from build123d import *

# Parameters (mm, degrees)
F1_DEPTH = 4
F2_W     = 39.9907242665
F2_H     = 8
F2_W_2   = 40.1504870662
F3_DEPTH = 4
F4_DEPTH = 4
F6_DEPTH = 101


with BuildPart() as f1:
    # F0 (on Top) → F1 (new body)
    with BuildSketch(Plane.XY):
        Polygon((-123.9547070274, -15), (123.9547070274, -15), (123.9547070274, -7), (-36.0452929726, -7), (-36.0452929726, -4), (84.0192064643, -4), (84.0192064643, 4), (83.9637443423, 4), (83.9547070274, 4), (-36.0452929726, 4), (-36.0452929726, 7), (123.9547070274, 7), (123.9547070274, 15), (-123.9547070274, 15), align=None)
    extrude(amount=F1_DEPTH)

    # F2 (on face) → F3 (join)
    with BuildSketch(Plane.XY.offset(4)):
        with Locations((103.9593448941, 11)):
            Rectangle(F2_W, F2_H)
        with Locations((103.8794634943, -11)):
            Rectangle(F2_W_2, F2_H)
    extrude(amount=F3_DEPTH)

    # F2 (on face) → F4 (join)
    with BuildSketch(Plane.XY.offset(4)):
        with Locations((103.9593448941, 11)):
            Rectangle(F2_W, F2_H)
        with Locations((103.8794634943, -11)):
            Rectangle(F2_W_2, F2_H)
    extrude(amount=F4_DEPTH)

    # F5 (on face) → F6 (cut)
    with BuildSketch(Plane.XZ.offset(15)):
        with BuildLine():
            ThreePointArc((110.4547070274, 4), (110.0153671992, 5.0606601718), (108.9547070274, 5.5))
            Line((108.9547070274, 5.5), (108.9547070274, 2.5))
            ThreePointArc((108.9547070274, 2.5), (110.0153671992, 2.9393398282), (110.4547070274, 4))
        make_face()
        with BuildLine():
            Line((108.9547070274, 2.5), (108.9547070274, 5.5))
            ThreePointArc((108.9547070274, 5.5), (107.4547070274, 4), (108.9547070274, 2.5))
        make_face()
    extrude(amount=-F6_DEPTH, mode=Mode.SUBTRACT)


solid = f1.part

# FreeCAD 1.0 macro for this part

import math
import FreeCAD as App
import Part
import Sketcher

V = App.Vector
Q = App.Units.Quantity

doc = App.newDocument("Part")
body = doc.addObject("PartDesign::Body", "Body")

# Sketch on XY plane
sketch1 = doc.addObject("Sketcher::SketchObject", "Sketch")
body.addObject(sketch1)
sketch1.AttachmentSupport = (doc.XY_Plane, [""])
sketch1.MapMode = "FlatFace"
sketch1.addGeometry(Part.LineSegment(V(-124, -15, 0), V(124, -15, 0)), False)
sketch1.addGeometry(Part.LineSegment(V(124, -15, 0), V(124, -7, 0)), False)
sketch1.addGeometry(Part.LineSegment(V(124, -7, 0), V(-36, -7, 0)), False)
sketch1.addGeometry(Part.LineSegment(V(-36, -7, 0), V(-36, -4, 0)), False)
sketch1.addGeometry(Part.LineSegment(V(-36, -4, 0), V(84, -4, 0)), False)
sketch1.addGeometry(Part.LineSegment(V(84, -4, 0), V(84, 4, 0)), False)
sketch1.addGeometry(Part.LineSegment(V(84, 4, 0), V(-36, 4, 0)), False)
sketch1.addGeometry(Part.LineSegment(V(-36, 4, 0), V(-36, 7, 0)), False)
sketch1.addGeometry(Part.LineSegment(V(-36, 7, 0), V(124, 7, 0)), False)
sketch1.addGeometry(Part.LineSegment(V(124, 7, 0), V(124, 15, 0)), False)
sketch1.addGeometry(Part.LineSegment(V(124, 15, 0), V(-124, 15, 0)), False)
sketch1.addGeometry(Part.LineSegment(V(-124, 15, 0), V(-124, -15, 0)), False)
sketch1.addConstraint(Sketcher.Constraint("Coincident", 0, 2, 1, 1))
sketch1.addConstraint(Sketcher.Constraint("Coincident", 1, 2, 2, 1))
sketch1.addConstraint(Sketcher.Constraint("Coincident", 2, 2, 3, 1))
sketch1.addConstraint(Sketcher.Constraint("Coincident", 3, 2, 4, 1))
sketch1.addConstraint(Sketcher.Constraint("Coincident", 4, 2, 5, 1))
sketch1.addConstraint(Sketcher.Constraint("Coincident", 5, 2, 6, 1))
sketch1.addConstraint(Sketcher.Constraint("Coincident", 6, 2, 7, 1))
sketch1.addConstraint(Sketcher.Constraint("Coincident", 7, 2, 8, 1))
sketch1.addConstraint(Sketcher.Constraint("Coincident", 8, 2, 9, 1))
sketch1.addConstraint(Sketcher.Constraint("Coincident", 9, 2, 10, 1))
sketch1.addConstraint(Sketcher.Constraint("Coincident", 10, 2, 11, 1))
sketch1.addConstraint(Sketcher.Constraint("Coincident", 11, 2, 0, 1))
sketch1.addConstraint(Sketcher.Constraint("Horizontal", 0))
sketch1.addConstraint(Sketcher.Constraint("Vertical", 1))
sketch1.addConstraint(Sketcher.Constraint("Horizontal", 2))
sketch1.addConstraint(Sketcher.Constraint("Vertical", 3))
sketch1.addConstraint(Sketcher.Constraint("Horizontal", 4))
sketch1.addConstraint(Sketcher.Constraint("Vertical", 5))
sketch1.addConstraint(Sketcher.Constraint("Horizontal", 6))
sketch1.addConstraint(Sketcher.Constraint("Vertical", 7))
sketch1.addConstraint(Sketcher.Constraint("Horizontal", 8))
sketch1.addConstraint(Sketcher.Constraint("Vertical", 9))
sketch1.addConstraint(Sketcher.Constraint("Horizontal", 10))
sketch1.addConstraint(Sketcher.Constraint("Vertical", 11))
sketch1.addConstraint(Sketcher.Constraint("Symmetric", 0, 2, 10, 2, -1, 1))
sketch1.addConstraint(Sketcher.Constraint("Symmetric", 3, 2, 6, 2, -1))
sketch1.addConstraint(Sketcher.Constraint("Symmetric", 1, 2, 8, 2, -1))
sketch1.addConstraint(Sketcher.Constraint("Equal", 1, 5))
sketch1.addConstraint(Sketcher.Constraint("DistanceX", 2, 2, 2, 1, Q("160 mm")))
sketch1.addConstraint(Sketcher.Constraint("DistanceY", 1, 1, 1, 2, Q("8 mm")))
sketch1.addConstraint(Sketcher.Constraint("DistanceY", 3, 1, 3, 2, Q("3 mm")))
sketch1.addConstraint(Sketcher.Constraint("DistanceX", 4, 1, 4, 2, Q("120.064499 mm")))
sketch1.addConstraint(Sketcher.Constraint("DistanceX", 0, 1, 0, 2, Q("247.909414 mm")))
pad1 = doc.addObject("PartDesign::Pad", "Pad")
body.addObject(pad1)
pad1.Profile = sketch1
pad1.Length = 4

# Sketch on XY plane
sketch2 = doc.addObject("Sketcher::SketchObject", "Sketch001")
body.addObject(sketch2)
sketch2.AttachmentSupport = (doc.XY_Plane, [""])
sketch2.MapMode = "FlatFace"
sketch2.AttachmentOffset = App.Placement(V(0, 0, 4), App.Rotation())
sketch2.addGeometry(Part.LineSegment(V(84, 15, 0), V(84, 7, 0)), False)
sketch2.addGeometry(Part.LineSegment(V(84, 7, 0), V(124, 7, 0)), False)
sketch2.addGeometry(Part.LineSegment(V(124, 7, 0), V(124, 15, 0)), False)
sketch2.addGeometry(Part.LineSegment(V(124, 15, 0), V(84, 15, 0)), False)
sketch2.addGeometry(Part.LineSegment(V(84, -7, 0), V(84, -15, 0)), False)
sketch2.addGeometry(Part.LineSegment(V(84, -15, 0), V(124, -15, 0)), False)
sketch2.addGeometry(Part.LineSegment(V(124, -15, 0), V(124, -7, 0)), False)
sketch2.addGeometry(Part.LineSegment(V(124, -7, 0), V(84, -7, 0)), False)
sketch2.addConstraint(Sketcher.Constraint("Coincident", 0, 2, 1, 1))
sketch2.addConstraint(Sketcher.Constraint("Coincident", 1, 2, 2, 1))
sketch2.addConstraint(Sketcher.Constraint("Coincident", 2, 2, 3, 1))
sketch2.addConstraint(Sketcher.Constraint("Coincident", 3, 2, 0, 1))
sketch2.addConstraint(Sketcher.Constraint("Coincident", 4, 2, 5, 1))
sketch2.addConstraint(Sketcher.Constraint("Coincident", 5, 2, 6, 1))
sketch2.addConstraint(Sketcher.Constraint("Coincident", 6, 2, 7, 1))
sketch2.addConstraint(Sketcher.Constraint("Coincident", 7, 2, 4, 1))
sketch2.addConstraint(Sketcher.Constraint("Vertical", 0))
sketch2.addConstraint(Sketcher.Constraint("Horizontal", 1))
sketch2.addConstraint(Sketcher.Constraint("Vertical", 2))
sketch2.addConstraint(Sketcher.Constraint("Horizontal", 3))
sketch2.addConstraint(Sketcher.Constraint("Vertical", 4))
sketch2.addConstraint(Sketcher.Constraint("Horizontal", 5))
sketch2.addConstraint(Sketcher.Constraint("Vertical", 6))
sketch2.addConstraint(Sketcher.Constraint("Horizontal", 7))
sketch2.addConstraint(Sketcher.Constraint("Symmetric", 2, 2, 5, 2, -1))
sketch2.addConstraint(Sketcher.Constraint("Equal", 2, 4))
sketch2.addConstraint(Sketcher.Constraint("DistanceY", 0, 2, 0, 1, Q("8 mm")))
sketch2.addConstraint(Sketcher.Constraint("DistanceY", -1, 1, 0, 2, Q("7 mm")))
sketch2.addConstraint(Sketcher.Constraint("DistanceX", 1, 1, 1, 2, Q("39.990724 mm")))
sketch2.addConstraint(Sketcher.Constraint("DistanceX", 5, 1, 5, 2, Q("40.150487 mm")))
sketch2.addConstraint(Sketcher.Constraint("DistanceX", -1, 1, 4, 2, Q("83.80422 mm")))
pad2 = doc.addObject("PartDesign::Pad", "Pad001")
body.addObject(pad2)
pad2.Profile = sketch2
pad2.Length = 4

# Sketch on XY plane
sketch3 = doc.addObject("Sketcher::SketchObject", "Sketch002")
body.addObject(sketch3)
sketch3.AttachmentSupport = (doc.XY_Plane, [""])
sketch3.MapMode = "FlatFace"
sketch3.AttachmentOffset = App.Placement(V(0, 0, 4), App.Rotation())
sketch3.addGeometry(Part.LineSegment(V(84, 15, 0), V(84, 7, 0)), False)
sketch3.addGeometry(Part.LineSegment(V(84, 7, 0), V(124, 7, 0)), False)
sketch3.addGeometry(Part.LineSegment(V(124, 7, 0), V(124, 15, 0)), False)
sketch3.addGeometry(Part.LineSegment(V(124, 15, 0), V(84, 15, 0)), False)
sketch3.addGeometry(Part.LineSegment(V(84, -7, 0), V(84, -15, 0)), False)
sketch3.addGeometry(Part.LineSegment(V(84, -15, 0), V(124, -15, 0)), False)
sketch3.addGeometry(Part.LineSegment(V(124, -15, 0), V(124, -7, 0)), False)
sketch3.addGeometry(Part.LineSegment(V(124, -7, 0), V(84, -7, 0)), False)
sketch3.addConstraint(Sketcher.Constraint("Coincident", 0, 2, 1, 1))
sketch3.addConstraint(Sketcher.Constraint("Coincident", 1, 2, 2, 1))
sketch3.addConstraint(Sketcher.Constraint("Coincident", 2, 2, 3, 1))
sketch3.addConstraint(Sketcher.Constraint("Coincident", 3, 2, 0, 1))
sketch3.addConstraint(Sketcher.Constraint("Coincident", 4, 2, 5, 1))
sketch3.addConstraint(Sketcher.Constraint("Coincident", 5, 2, 6, 1))
sketch3.addConstraint(Sketcher.Constraint("Coincident", 6, 2, 7, 1))
sketch3.addConstraint(Sketcher.Constraint("Coincident", 7, 2, 4, 1))
sketch3.addConstraint(Sketcher.Constraint("Vertical", 0))
sketch3.addConstraint(Sketcher.Constraint("Horizontal", 1))
sketch3.addConstraint(Sketcher.Constraint("Vertical", 2))
sketch3.addConstraint(Sketcher.Constraint("Horizontal", 3))
sketch3.addConstraint(Sketcher.Constraint("Vertical", 4))
sketch3.addConstraint(Sketcher.Constraint("Horizontal", 5))
sketch3.addConstraint(Sketcher.Constraint("Vertical", 6))
sketch3.addConstraint(Sketcher.Constraint("Horizontal", 7))
sketch3.addConstraint(Sketcher.Constraint("Symmetric", 2, 2, 5, 2, -1))
sketch3.addConstraint(Sketcher.Constraint("Equal", 2, 4))
sketch3.addConstraint(Sketcher.Constraint("DistanceY", 0, 2, 0, 1, Q("8 mm")))
sketch3.addConstraint(Sketcher.Constraint("DistanceY", -1, 1, 0, 2, Q("7 mm")))
sketch3.addConstraint(Sketcher.Constraint("DistanceX", 1, 1, 1, 2, Q("39.990724 mm")))
sketch3.addConstraint(Sketcher.Constraint("DistanceX", 5, 1, 5, 2, Q("40.150487 mm")))
sketch3.addConstraint(Sketcher.Constraint("DistanceX", -1, 1, 4, 2, Q("83.80422 mm")))
pad3 = doc.addObject("PartDesign::Pad", "Pad002")
body.addObject(pad3)
pad3.Profile = sketch3
pad3.Length = 4

# Sketch on XZ plane
sketch4 = doc.addObject("Sketcher::SketchObject", "Sketch003")
body.addObject(sketch4)
sketch4.AttachmentSupport = (doc.XZ_Plane, [""])
sketch4.MapMode = "FlatFace"
sketch4.AttachmentOffset = App.Placement(V(0, 0, 15), App.Rotation())
sketch4.addGeometry(Part.ArcOfCircle(Part.Circle(V(109, 4, 0), V(0, 0, 1), 1.5), math.radians(0), math.radians(90)), False)
sketch4.addGeometry(Part.ArcOfCircle(Part.Circle(V(109, 4, 0), V(0, 0, 1), 1.5), math.radians(90), math.radians(270)), False)
sketch4.addGeometry(Part.ArcOfCircle(Part.Circle(V(109, 4, 0), V(0, 0, 1), 1.5), math.radians(-90), math.radians(0)), False)
sketch4.addConstraint(Sketcher.Constraint("Tangent", 0, 2, 1, 1))
sketch4.addConstraint(Sketcher.Constraint("Tangent", 1, 2, 2, 1))
sketch4.addConstraint(Sketcher.Constraint("Tangent", 2, 2, 0, 1))
sketch4.addConstraint(Sketcher.Constraint("Horizontal", 1, 3, 2, 2))
sketch4.addConstraint(Sketcher.Constraint("Vertical", 2, 3, 0, 2))
sketch4.addConstraint(Sketcher.Constraint("Vertical", 0, 2, 1, 2))
sketch4.addConstraint(Sketcher.Constraint("Radius", 0, Q("1.5 mm")))
sketch4.addConstraint(Sketcher.Constraint("DistanceY", -1, 1, 0, 3, Q("4 mm")))
sketch4.addConstraint(Sketcher.Constraint("DistanceX", -1, 1, 0, 3, Q("108.954707 mm")))
pocket1 = doc.addObject("PartDesign::Pocket", "Pocket")
body.addObject(pocket1)
pocket1.Profile = sketch4
pocket1.Length = 101

doc.recompute()
